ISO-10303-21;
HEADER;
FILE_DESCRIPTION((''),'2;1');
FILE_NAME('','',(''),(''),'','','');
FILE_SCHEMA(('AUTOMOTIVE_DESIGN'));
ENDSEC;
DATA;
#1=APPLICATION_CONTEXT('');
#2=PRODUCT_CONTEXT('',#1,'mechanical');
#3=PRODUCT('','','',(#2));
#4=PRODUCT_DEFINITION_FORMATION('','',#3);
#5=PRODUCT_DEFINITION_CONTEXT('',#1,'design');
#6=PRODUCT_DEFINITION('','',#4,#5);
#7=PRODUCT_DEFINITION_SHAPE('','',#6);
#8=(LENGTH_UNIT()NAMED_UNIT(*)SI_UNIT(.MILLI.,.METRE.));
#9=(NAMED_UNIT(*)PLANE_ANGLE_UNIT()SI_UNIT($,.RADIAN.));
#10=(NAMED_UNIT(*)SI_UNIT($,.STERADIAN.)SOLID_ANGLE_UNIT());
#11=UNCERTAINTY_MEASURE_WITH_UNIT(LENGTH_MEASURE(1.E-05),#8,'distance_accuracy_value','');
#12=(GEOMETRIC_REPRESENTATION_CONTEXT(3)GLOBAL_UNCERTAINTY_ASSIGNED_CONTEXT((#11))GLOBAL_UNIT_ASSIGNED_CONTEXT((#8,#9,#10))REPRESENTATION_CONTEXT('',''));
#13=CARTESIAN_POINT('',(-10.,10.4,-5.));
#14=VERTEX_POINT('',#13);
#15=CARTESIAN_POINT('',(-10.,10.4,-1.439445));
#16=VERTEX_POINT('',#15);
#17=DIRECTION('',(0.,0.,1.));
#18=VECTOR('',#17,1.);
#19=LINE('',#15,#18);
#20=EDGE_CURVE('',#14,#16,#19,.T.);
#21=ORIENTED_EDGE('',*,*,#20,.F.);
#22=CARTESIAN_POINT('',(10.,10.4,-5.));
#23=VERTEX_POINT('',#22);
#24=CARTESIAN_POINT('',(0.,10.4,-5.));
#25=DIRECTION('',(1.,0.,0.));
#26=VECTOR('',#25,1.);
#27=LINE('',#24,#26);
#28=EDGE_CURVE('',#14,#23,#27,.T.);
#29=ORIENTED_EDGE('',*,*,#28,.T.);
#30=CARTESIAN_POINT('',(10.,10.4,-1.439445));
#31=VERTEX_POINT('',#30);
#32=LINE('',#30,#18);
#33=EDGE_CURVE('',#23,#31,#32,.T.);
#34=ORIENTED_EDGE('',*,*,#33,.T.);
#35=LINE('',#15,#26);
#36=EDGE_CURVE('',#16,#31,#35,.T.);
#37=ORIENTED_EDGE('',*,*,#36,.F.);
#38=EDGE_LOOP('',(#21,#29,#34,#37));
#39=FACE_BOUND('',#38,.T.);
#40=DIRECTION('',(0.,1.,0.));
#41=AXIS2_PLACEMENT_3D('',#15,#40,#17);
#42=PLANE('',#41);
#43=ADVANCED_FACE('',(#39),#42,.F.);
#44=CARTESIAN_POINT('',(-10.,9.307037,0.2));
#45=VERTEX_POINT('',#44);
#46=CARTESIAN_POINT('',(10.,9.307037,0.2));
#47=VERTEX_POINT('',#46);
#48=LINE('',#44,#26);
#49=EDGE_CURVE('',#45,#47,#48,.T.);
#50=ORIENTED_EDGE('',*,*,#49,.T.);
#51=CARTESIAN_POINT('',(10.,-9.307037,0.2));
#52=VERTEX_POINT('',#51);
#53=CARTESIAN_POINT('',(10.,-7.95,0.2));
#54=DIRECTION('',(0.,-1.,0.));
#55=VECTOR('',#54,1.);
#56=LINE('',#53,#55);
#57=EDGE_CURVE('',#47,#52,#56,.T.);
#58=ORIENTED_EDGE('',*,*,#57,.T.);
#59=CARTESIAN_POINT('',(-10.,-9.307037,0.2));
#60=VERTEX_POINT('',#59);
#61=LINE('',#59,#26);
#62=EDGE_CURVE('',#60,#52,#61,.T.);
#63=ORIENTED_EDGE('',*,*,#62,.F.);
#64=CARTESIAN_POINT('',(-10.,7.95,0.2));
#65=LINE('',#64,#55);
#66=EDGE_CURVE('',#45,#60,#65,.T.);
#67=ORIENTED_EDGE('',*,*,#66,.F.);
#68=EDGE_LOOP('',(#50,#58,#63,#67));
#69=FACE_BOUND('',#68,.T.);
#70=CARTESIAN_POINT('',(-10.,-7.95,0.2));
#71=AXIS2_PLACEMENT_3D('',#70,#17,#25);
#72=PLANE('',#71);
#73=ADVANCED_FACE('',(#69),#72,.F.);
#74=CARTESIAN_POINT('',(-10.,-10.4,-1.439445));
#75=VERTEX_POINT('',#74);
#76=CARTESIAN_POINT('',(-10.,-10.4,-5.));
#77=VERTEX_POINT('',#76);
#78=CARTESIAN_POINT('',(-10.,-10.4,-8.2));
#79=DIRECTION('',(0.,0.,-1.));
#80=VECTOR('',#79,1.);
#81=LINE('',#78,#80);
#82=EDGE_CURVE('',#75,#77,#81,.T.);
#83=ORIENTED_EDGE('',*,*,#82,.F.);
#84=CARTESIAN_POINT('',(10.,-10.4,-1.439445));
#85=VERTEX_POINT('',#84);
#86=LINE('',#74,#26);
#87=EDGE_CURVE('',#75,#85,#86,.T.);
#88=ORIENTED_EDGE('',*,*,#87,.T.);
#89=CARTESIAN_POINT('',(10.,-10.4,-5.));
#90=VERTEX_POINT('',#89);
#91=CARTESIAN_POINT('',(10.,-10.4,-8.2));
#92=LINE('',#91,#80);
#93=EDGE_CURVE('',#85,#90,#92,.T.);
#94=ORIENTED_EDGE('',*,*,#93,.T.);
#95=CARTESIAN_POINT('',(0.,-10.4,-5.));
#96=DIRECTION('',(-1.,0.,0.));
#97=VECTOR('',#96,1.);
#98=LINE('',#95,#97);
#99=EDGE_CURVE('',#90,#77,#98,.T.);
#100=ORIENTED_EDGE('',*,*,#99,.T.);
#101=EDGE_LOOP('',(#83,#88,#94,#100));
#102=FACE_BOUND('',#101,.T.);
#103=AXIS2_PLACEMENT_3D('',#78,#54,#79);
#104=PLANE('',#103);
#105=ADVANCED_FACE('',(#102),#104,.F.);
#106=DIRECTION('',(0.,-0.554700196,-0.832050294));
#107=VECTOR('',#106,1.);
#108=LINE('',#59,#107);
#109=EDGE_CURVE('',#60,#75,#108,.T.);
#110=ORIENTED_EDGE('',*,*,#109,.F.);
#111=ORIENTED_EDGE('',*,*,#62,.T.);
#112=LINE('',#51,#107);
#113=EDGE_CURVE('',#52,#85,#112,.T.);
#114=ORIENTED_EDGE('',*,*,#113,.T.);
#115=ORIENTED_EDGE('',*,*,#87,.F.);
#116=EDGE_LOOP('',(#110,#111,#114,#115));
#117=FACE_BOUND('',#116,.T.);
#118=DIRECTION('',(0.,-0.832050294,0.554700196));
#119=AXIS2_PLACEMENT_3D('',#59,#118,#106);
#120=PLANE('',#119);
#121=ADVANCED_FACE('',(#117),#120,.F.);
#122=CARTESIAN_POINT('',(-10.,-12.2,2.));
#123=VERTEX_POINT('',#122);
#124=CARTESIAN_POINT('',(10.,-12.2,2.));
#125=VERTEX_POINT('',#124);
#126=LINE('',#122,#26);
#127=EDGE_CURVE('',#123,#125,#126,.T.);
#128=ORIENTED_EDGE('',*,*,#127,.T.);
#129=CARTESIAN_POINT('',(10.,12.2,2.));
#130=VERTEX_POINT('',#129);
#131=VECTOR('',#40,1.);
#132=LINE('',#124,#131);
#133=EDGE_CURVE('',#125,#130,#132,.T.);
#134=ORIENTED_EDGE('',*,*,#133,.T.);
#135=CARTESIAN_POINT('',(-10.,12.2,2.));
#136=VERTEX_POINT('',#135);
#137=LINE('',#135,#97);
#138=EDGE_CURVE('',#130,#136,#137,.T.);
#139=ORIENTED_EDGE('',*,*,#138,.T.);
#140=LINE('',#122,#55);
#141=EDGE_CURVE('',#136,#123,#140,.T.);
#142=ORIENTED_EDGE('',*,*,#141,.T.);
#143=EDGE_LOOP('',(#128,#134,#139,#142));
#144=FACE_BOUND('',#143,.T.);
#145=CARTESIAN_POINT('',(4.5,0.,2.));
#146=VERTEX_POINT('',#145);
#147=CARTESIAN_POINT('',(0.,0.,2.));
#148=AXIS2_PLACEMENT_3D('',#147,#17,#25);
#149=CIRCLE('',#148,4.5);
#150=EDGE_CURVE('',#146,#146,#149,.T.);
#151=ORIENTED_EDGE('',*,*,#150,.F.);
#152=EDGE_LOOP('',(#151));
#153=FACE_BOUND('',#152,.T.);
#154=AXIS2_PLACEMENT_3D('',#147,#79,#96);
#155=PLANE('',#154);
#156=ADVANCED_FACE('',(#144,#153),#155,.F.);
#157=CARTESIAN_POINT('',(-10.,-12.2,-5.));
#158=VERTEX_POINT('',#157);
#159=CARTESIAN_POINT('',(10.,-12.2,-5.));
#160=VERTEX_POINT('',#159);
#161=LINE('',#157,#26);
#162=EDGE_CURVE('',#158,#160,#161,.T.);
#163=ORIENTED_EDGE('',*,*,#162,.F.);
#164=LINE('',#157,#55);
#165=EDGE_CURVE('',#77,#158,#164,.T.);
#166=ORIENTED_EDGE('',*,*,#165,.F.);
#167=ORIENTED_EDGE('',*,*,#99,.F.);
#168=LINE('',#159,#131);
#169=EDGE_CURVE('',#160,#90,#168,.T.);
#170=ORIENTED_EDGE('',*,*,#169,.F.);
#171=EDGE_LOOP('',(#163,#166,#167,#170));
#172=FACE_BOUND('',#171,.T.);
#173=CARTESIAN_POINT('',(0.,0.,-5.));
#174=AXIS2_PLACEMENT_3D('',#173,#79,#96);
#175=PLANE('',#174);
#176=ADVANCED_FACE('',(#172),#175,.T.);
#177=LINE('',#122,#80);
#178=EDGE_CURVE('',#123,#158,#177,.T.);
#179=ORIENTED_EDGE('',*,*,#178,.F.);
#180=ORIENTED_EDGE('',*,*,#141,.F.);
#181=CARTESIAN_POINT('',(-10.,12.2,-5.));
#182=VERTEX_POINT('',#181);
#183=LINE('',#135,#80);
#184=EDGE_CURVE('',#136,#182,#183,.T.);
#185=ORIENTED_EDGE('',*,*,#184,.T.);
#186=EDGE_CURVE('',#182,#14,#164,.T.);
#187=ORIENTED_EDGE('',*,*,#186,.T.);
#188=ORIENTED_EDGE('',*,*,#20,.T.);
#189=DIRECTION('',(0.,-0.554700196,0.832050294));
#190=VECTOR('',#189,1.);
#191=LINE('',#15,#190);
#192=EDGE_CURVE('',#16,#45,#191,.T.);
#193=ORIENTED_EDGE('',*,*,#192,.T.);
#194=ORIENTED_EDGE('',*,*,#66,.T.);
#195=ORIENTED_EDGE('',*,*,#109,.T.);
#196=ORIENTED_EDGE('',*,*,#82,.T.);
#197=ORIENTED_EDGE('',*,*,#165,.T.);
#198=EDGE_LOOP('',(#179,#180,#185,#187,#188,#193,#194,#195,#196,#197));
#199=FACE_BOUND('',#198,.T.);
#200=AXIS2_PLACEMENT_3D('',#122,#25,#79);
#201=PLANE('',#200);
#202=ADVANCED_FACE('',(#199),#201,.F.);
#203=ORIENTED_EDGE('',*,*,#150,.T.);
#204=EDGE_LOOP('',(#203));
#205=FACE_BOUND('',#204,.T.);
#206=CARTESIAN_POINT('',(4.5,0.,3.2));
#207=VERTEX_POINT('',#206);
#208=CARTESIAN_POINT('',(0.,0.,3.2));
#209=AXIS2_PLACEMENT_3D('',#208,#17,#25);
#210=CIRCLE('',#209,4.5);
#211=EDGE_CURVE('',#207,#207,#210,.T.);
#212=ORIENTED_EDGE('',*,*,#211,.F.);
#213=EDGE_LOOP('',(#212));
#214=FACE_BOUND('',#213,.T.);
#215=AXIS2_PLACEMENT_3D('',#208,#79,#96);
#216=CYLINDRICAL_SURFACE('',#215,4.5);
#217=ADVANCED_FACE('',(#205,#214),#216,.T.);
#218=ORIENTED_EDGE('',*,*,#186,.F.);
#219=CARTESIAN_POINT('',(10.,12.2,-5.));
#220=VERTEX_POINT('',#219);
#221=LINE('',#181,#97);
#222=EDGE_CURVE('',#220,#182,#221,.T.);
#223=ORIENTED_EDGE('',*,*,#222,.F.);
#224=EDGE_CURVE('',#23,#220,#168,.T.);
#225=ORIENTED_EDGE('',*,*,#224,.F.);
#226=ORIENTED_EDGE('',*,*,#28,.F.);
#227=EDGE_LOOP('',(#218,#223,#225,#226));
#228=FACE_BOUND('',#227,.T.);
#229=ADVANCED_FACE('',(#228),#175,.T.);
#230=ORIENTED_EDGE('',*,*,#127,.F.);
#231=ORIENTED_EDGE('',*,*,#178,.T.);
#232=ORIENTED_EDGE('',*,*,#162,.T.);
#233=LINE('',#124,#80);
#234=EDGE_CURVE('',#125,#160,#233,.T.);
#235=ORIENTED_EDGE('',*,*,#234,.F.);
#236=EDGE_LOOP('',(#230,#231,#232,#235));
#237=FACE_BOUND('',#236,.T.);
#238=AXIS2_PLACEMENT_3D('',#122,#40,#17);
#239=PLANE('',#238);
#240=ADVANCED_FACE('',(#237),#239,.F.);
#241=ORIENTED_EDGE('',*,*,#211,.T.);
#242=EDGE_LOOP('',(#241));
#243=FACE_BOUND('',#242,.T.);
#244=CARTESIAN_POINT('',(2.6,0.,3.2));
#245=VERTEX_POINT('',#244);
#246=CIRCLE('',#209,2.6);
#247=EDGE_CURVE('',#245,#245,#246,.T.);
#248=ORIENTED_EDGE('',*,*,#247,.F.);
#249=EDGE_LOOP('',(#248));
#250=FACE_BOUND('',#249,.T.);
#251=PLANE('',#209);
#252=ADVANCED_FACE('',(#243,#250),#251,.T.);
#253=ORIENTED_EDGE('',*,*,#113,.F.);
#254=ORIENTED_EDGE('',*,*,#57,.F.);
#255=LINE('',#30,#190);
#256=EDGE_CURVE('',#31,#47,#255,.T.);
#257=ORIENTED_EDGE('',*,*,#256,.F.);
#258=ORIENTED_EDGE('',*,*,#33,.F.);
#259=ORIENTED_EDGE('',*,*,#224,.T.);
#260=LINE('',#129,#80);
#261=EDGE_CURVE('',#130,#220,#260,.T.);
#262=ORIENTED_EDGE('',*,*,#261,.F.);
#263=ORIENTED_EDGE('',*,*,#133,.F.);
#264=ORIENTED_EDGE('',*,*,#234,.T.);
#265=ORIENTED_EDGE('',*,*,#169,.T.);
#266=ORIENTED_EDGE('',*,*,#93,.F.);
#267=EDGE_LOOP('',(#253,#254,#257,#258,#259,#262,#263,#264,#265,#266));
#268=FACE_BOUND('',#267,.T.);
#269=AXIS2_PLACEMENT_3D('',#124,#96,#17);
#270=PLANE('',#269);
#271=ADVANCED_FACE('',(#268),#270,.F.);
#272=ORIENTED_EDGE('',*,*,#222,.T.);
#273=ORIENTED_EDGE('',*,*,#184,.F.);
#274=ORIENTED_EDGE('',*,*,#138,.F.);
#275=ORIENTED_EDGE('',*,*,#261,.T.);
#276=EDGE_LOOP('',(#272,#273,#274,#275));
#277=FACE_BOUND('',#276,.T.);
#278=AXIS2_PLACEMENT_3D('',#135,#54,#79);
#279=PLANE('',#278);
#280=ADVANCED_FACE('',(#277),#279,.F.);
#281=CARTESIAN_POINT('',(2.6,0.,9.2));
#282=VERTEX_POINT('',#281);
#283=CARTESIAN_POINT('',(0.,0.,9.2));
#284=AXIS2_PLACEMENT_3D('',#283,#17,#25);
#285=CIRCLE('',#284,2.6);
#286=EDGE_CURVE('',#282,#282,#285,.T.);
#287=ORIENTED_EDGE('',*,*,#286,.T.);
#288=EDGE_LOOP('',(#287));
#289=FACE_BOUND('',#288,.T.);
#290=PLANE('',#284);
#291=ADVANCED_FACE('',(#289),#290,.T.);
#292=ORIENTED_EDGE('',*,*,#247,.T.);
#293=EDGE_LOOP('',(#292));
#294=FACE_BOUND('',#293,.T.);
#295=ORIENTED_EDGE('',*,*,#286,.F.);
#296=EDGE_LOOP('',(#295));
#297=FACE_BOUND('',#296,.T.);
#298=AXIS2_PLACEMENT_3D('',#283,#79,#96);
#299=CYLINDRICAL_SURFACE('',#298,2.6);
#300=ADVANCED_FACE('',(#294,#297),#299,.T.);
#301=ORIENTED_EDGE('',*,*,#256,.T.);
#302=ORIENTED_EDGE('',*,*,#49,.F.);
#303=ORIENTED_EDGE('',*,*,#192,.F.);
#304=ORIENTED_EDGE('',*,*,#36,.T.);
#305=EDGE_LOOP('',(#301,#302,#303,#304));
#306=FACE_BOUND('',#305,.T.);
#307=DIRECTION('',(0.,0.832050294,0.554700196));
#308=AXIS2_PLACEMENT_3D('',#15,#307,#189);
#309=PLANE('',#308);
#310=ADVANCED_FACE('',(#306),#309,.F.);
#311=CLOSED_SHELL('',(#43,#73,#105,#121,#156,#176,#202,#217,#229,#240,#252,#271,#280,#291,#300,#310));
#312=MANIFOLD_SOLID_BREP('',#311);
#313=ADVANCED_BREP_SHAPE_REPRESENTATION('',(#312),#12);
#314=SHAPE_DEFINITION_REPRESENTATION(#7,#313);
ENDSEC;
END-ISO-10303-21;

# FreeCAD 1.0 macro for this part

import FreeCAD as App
import Part
import Sketcher

V = App.Vector


def add_polygon(sketch, points):
    """Adds a closed chain of lines whose ends are joined by coincident constraints."""
    first, n = sketch.GeometryCount, len(points)
    for a, b in zip(points, points[1:] + points[:1]):
        sketch.addGeometry(Part.LineSegment(App.Vector(*a, 0), App.Vector(*b, 0)), False)
    for i in range(n):
        sketch.addConstraint(Sketcher.Constraint("Coincident", first + i, 2, first + (i + 1) % n, 1))

doc = App.newDocument("Part")
body = doc.addObject("PartDesign::Body", "Body")

# Sketch on XY plane
sketch1 = doc.addObject("Sketcher::SketchObject", "Sketch")
body.addObject(sketch1)
sketch1.AttachmentSupport = (doc.XY_Plane, [""])
sketch1.MapMode = "FlatFace"
add_polygon(sketch1, [(-10, 12.2), (-10, -12.2), (10, -12.2), (10, 12.2)])  # lines 0-3
sketch1.addConstraint(Sketcher.Constraint("Vertical", 0))
sketch1.addConstraint(Sketcher.Constraint("Horizontal", 1))
sketch1.addConstraint(Sketcher.Constraint("Vertical", 2))
sketch1.addConstraint(Sketcher.Constraint("Horizontal", 3))
sketch1.addConstraint(Sketcher.Constraint("Symmetric", 0, 2, 2, 2, -1, 1))
sketch1.addConstraint(Sketcher.Constraint("DistanceX", 1, 1, 1, 2, 20.0))
sketch1.addConstraint(Sketcher.Constraint("DistanceY", 0, 2, 0, 1, 24.4))
pad1 = doc.addObject("PartDesign::Pad", "Pad")
body.addObject(pad1)
pad1.Profile = sketch1
pad1.Type = "TwoLengths"
pad1.Length = 2
pad1.Length2 = 5

# Sketch on YZ plane
sketch2 = doc.addObject("Sketcher::SketchObject", "Sketch001")
body.addObject(sketch2)
sketch2.AttachmentSupport = (doc.YZ_Plane, [""])
sketch2.MapMode = "FlatFace"
sketch2.AttachmentOffset = App.Placement(V(0, 0, 10), App.Rotation())
add_polygon(sketch2, [(-10.4, -1.439445), (-10.4, -8.2), (10.4, -8.2), (10.4, -1.439445), (9.307037, 0.2), (-9.307037, 0.2)])  # lines 0-5
sketch2.addConstraint(Sketcher.Constraint("Vertical", 0))
sketch2.addConstraint(Sketcher.Constraint("Horizontal", 1))
sketch2.addConstraint(Sketcher.Constraint("Vertical", 2))
sketch2.addConstraint(Sketcher.Constraint("Horizontal", 4))
sketch2.addConstraint(Sketcher.Constraint("Symmetric", 2, 2, 5, 2, -2))
sketch2.addConstraint(Sketcher.Constraint("Equal", 3, 5))
sketch2.addConstraint(Sketcher.Constraint("DistanceX", 1, 1, 1, 2, 20.8))
sketch2.addConstraint(Sketcher.Constraint("DistanceY", 0, 2, -1, 1, 8.2))
sketch2.addConstraint(Sketcher.Constraint("DistanceY", -1, 1, 3, 2, 0.2))
sketch2.addConstraint(Sketcher.Constraint("DistanceX", 4, 2, 4, 1, 18.614074))
sketch2.addConstraint(Sketcher.Constraint("DistanceY", 0, 2, 0, 1, 6.760555))
pocket1 = doc.addObject("PartDesign::Pocket", "Pocket")
body.addObject(pocket1)
pocket1.Profile = sketch2
pocket1.Type = "ThroughAll"

# Sketch on XY plane
sketch3 = doc.addObject("Sketcher::SketchObject", "Sketch002")
body.addObject(sketch3)
sketch3.AttachmentSupport = (doc.XY_Plane, [""])
sketch3.MapMode = "FlatFace"
sketch3.AttachmentOffset = App.Placement(V(0, 0, 2), App.Rotation())
sketch3.addGeometry(Part.Circle(V(0, 0, 0), V(0, 0, 1), 4.5), False)
sketch3.addConstraint(Sketcher.Constraint("Coincident", 0, 3, -1, 1))
sketch3.addConstraint(Sketcher.Constraint("Diameter", 0, 9.0))
pad2 = doc.addObject("PartDesign::Pad", "Pad001")
body.addObject(pad2)
pad2.Profile = sketch3
pad2.Length = 1.2

# Sketch on XY plane
sketch4 = doc.addObject("Sketcher::SketchObject", "Sketch003")
body.addObject(sketch4)
sketch4.AttachmentSupport = (doc.XY_Plane, [""])
sketch4.MapMode = "FlatFace"
sketch4.AttachmentOffset = App.Placement(V(0, 0, 3.2), App.Rotation())
sketch4.addGeometry(Part.Circle(V(0, 0, 0), V(0, 0, 1), 2.6), False)
sketch4.addConstraint(Sketcher.Constraint("Coincident", 0, 3, -1, 1))
sketch4.addConstraint(Sketcher.Constraint("Diameter", 0, 5.2))
pad3 = doc.addObject("PartDesign::Pad", "Pad002")
body.addObject(pad3)
pad3.Profile = sketch4
pad3.Length = 6

doc.recompute()
